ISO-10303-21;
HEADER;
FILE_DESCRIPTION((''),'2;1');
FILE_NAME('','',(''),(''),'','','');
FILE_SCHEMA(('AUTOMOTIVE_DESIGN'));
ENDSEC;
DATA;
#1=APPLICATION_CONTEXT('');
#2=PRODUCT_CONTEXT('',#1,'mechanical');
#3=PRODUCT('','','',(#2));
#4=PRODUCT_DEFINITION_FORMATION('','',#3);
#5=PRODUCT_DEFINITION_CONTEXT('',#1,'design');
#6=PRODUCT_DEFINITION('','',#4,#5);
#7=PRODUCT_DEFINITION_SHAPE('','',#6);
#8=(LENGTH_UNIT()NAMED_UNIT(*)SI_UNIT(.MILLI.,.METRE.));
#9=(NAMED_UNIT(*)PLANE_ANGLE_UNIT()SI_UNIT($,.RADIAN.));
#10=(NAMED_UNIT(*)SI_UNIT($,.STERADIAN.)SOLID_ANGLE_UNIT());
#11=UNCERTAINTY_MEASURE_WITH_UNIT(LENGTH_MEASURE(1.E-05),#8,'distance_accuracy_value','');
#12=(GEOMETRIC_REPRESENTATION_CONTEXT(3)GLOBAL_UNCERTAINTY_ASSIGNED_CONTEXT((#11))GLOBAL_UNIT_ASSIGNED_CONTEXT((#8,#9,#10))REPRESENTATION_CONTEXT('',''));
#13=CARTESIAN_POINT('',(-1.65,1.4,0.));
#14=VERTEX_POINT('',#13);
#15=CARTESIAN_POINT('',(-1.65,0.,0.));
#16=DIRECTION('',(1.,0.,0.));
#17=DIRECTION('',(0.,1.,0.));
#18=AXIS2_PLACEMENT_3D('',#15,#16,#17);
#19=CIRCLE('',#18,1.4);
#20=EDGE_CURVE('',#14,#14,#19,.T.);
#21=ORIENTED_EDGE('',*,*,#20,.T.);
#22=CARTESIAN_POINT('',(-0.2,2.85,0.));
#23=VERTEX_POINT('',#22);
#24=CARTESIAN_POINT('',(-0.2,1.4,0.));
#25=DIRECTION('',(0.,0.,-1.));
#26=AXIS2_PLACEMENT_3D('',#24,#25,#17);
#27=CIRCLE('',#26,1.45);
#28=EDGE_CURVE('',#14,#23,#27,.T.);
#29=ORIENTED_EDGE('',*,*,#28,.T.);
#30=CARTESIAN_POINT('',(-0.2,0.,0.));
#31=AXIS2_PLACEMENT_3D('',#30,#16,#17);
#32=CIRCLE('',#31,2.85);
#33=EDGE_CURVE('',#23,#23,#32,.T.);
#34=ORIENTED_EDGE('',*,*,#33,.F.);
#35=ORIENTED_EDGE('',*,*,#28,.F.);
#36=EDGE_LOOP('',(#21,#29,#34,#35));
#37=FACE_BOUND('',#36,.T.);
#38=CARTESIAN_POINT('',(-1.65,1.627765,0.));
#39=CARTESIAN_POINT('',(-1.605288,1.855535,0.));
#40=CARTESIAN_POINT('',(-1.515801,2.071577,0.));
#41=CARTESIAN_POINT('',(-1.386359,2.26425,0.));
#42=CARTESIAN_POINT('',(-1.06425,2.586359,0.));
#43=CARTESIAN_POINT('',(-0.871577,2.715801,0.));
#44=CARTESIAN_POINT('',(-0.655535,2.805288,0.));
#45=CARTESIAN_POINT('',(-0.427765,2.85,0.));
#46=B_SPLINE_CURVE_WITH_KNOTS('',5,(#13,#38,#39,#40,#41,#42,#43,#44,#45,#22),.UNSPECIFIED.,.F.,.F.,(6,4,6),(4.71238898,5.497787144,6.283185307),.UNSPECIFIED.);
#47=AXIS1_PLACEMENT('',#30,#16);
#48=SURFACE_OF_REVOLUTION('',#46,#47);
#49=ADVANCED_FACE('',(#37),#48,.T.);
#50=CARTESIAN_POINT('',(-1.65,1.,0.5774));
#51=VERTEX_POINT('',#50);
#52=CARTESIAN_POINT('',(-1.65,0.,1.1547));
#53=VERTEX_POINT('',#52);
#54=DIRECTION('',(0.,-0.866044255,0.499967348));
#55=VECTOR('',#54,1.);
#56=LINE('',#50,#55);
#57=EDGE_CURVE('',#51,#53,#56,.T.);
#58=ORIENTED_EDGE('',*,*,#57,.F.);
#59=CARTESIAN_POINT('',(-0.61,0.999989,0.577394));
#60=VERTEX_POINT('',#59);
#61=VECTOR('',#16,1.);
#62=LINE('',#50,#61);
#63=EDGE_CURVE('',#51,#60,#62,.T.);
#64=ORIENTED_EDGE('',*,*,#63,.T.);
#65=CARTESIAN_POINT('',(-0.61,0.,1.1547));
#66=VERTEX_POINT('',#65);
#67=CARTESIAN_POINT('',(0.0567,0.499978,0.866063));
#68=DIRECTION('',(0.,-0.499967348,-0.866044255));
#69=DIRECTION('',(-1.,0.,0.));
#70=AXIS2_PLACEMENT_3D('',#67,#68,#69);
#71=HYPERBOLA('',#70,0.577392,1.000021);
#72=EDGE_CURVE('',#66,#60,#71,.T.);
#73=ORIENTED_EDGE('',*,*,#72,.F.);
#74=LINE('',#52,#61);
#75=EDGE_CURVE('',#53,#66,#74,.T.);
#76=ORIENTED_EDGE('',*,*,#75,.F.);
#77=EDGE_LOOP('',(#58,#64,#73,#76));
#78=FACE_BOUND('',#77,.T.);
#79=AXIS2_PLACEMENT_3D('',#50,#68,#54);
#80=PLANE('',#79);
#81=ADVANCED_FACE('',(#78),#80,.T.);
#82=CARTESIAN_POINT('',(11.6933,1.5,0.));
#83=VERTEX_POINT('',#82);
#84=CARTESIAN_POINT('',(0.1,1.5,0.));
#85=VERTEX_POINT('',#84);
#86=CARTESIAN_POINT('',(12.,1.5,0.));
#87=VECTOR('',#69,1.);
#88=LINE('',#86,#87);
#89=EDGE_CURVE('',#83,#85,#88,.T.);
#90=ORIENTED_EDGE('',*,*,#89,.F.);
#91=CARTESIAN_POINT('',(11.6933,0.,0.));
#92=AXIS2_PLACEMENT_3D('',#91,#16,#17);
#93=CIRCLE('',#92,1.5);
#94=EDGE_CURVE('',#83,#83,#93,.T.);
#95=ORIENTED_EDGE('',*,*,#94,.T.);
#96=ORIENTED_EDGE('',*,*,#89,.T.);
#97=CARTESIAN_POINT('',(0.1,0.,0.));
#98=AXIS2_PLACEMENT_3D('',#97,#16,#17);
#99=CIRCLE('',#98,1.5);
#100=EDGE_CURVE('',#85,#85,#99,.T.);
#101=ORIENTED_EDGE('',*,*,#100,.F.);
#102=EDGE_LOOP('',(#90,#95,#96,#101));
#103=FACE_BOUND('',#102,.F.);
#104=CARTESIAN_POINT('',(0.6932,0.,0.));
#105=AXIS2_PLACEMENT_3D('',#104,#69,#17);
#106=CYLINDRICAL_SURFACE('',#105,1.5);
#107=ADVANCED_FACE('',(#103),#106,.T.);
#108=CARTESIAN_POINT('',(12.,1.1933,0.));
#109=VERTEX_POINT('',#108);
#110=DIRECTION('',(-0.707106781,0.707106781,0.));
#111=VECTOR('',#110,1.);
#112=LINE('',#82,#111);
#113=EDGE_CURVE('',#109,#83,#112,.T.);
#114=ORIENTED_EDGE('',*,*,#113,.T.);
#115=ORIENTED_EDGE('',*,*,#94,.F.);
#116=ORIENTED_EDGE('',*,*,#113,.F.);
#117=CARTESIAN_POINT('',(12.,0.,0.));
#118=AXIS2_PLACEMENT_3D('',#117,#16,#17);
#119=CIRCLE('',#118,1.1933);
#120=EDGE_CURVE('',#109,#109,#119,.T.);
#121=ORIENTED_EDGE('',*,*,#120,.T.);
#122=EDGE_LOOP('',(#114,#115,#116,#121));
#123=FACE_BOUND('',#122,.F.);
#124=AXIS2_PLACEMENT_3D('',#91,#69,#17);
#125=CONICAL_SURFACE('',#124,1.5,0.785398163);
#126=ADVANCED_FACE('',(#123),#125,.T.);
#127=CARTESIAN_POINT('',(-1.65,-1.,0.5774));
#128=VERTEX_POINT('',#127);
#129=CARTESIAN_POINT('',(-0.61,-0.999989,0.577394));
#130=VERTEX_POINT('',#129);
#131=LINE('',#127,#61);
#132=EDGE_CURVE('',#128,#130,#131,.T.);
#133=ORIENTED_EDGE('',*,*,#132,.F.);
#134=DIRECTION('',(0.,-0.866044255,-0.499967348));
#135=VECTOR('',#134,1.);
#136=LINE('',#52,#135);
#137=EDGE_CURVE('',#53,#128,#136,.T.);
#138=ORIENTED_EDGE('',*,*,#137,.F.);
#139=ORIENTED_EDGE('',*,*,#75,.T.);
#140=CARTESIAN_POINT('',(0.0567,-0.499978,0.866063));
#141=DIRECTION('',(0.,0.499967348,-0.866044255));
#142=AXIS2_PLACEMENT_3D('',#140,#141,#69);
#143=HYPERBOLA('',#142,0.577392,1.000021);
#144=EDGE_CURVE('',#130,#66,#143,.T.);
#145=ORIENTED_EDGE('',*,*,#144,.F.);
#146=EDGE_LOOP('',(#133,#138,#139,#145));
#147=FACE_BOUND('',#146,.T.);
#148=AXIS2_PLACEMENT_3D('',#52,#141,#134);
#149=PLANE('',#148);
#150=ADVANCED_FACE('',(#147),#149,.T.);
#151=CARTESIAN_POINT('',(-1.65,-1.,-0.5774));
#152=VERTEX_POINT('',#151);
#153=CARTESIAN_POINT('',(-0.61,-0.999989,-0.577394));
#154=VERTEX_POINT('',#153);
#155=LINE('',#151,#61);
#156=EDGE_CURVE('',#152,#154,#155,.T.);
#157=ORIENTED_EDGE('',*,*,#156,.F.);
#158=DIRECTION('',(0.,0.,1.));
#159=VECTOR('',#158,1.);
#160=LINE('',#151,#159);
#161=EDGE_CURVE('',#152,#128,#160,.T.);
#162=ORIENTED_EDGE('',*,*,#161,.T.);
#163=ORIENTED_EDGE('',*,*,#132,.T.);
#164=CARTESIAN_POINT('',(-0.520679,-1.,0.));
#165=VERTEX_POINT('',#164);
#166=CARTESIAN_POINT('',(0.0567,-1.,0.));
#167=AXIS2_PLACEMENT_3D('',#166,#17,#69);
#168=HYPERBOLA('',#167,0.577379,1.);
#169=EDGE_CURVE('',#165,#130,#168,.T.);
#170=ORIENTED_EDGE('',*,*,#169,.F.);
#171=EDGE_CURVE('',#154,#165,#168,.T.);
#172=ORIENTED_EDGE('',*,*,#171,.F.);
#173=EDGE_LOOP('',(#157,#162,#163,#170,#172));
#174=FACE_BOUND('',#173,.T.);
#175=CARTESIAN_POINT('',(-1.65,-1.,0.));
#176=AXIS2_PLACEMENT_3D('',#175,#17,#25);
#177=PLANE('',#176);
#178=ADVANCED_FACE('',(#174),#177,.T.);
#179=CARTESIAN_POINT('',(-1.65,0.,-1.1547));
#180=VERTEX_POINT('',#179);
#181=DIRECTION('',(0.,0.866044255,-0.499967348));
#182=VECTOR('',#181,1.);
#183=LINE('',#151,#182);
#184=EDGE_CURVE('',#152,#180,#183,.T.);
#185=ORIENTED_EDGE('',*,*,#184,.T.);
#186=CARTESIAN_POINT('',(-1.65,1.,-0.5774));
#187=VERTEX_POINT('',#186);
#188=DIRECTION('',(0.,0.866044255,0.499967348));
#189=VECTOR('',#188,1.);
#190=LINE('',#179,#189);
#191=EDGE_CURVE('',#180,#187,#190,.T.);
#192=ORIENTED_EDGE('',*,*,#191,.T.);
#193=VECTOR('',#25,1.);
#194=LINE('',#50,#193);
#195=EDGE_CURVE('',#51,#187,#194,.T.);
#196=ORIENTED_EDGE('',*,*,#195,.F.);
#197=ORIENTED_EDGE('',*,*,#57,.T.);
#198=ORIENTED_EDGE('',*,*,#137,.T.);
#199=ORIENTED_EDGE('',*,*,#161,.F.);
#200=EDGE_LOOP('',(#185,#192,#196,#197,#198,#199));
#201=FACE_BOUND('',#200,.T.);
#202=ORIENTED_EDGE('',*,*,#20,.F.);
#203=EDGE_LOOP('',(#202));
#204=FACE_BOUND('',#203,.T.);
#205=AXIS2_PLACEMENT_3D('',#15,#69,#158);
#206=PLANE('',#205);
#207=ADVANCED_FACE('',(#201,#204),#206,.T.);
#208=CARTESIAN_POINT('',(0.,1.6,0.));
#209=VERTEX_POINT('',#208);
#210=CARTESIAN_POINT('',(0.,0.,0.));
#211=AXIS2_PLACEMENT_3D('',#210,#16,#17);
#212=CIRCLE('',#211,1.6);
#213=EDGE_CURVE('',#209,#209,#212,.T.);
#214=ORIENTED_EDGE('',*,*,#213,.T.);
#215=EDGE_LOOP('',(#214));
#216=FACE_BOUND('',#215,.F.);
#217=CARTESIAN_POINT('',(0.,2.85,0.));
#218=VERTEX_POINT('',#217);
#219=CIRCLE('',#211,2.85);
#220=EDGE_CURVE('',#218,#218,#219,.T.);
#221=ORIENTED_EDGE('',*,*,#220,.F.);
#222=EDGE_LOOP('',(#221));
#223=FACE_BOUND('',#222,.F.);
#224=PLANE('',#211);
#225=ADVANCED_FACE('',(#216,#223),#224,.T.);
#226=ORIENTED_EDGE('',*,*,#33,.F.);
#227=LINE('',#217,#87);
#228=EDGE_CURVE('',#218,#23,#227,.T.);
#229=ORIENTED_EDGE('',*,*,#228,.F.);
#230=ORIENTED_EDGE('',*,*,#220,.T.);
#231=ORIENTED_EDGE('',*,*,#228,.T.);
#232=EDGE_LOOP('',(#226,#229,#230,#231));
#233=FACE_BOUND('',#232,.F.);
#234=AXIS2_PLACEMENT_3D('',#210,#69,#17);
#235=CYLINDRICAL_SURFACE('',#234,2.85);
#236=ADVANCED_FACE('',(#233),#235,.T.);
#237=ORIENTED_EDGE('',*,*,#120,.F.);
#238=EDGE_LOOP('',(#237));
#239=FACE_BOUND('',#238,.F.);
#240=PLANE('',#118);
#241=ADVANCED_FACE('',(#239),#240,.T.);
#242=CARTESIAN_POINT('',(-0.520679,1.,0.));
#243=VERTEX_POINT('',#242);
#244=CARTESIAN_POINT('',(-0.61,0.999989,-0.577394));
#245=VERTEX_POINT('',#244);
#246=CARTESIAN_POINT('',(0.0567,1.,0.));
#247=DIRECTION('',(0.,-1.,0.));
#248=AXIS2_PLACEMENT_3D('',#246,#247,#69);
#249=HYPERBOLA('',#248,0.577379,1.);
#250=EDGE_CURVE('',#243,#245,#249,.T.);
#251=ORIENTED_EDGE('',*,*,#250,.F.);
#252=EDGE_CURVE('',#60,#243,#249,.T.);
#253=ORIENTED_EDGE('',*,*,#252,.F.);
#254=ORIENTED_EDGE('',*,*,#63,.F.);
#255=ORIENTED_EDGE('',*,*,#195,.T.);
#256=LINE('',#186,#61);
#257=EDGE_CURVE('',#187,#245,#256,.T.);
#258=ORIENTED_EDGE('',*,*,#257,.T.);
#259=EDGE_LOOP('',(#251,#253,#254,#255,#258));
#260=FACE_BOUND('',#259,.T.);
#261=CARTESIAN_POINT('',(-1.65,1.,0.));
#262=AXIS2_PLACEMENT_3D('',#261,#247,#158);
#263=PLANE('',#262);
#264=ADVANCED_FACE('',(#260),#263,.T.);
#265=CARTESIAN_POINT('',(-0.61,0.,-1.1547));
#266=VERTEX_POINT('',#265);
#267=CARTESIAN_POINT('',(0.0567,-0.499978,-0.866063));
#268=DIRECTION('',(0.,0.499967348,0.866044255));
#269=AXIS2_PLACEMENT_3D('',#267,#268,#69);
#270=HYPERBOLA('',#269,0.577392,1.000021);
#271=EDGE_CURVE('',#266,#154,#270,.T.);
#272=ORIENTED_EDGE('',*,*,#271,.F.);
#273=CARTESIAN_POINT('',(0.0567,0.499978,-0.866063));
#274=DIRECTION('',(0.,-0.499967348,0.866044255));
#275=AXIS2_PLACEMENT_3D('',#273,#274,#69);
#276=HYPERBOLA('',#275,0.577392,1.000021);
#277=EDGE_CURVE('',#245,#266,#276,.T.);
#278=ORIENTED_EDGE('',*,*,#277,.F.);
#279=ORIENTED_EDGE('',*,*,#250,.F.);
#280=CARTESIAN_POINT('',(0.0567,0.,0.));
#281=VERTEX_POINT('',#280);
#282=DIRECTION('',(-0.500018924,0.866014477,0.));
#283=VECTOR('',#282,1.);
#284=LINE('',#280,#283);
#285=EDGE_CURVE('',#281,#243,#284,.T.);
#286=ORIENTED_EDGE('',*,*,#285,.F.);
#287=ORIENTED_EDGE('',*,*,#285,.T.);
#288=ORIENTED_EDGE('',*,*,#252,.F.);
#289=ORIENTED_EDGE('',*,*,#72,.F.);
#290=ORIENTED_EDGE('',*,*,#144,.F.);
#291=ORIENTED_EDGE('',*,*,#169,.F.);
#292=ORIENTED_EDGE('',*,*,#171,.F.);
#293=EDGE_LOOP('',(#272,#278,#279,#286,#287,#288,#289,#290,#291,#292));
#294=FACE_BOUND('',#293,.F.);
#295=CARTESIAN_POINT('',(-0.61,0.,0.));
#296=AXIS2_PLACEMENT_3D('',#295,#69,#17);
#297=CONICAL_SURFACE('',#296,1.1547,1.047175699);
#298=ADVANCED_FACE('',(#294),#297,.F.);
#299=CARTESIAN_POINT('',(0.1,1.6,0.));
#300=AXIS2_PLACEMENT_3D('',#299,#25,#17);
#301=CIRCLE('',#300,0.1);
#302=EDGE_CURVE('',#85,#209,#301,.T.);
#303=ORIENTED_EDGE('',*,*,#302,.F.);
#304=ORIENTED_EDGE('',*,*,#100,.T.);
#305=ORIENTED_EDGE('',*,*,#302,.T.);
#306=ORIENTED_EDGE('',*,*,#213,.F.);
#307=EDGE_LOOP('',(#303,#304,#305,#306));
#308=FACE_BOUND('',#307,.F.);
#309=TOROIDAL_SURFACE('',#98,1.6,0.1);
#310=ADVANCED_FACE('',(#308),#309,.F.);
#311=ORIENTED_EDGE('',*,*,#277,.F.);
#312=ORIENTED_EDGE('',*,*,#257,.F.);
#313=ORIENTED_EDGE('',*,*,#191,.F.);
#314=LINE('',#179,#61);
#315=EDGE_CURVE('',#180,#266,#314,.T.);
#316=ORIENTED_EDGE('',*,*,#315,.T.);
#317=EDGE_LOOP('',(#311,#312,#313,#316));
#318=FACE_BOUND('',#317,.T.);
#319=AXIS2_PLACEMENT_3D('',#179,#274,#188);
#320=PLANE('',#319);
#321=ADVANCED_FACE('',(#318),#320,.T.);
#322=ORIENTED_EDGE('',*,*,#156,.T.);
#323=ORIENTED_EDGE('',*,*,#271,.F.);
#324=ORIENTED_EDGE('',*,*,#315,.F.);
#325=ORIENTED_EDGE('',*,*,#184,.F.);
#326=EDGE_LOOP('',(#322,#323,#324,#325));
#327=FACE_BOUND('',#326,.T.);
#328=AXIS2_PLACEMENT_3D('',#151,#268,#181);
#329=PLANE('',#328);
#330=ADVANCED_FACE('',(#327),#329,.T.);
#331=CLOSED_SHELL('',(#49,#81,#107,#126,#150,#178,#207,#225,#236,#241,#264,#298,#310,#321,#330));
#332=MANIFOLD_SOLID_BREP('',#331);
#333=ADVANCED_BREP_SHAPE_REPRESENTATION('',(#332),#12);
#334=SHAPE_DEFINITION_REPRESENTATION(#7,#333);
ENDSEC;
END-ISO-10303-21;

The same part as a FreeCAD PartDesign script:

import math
import FreeCAD as App
import Part
import Sketcher

V = App.Vector
Q = App.Units.Quantity


def edges_at(feature, points):
    """Names of the edges that pass closest to the given points."""
    edges = feature.Shape.Edges
    near = lambda p: min(range(len(edges)), key=lambda i: edges[i].distToShape(Part.Vertex(*p))[0])
    return sorted({f"Edge{near(p) + 1}" for p in points})


def add_polygon(sketch, points):
    """Adds a closed chain of lines whose ends are joined by coincident constraints."""
    first, n = sketch.GeometryCount, len(points)
    for a, b in zip(points, points[1:] + points[:1]):
        sketch.addGeometry(Part.LineSegment(App.Vector(*a, 0), App.Vector(*b, 0)), False)
    for i in range(n):
        sketch.addConstraint(Sketcher.Constraint("Coincident", first + i, 2, first + (i + 1) % n, 1))

doc = App.newDocument("Part")
body = doc.addObject("PartDesign::Body", "Body")

# Sketch on XY plane
sketch1 = doc.addObject("Sketcher::SketchObject", "Sketch")
body.addObject(sketch1)
sketch1.AttachmentSupport = (doc.XY_Plane, [""])
sketch1.MapMode = "FlatFace"
add_polygon(sketch1, [(0.1, 0), (12, 0), (12, 1.5), (0, 1.5), (0, 2.9), (-1.6, 2.9), (-1.6, 1.2), (-0.6, 1.2)])  # lines 0-7
sketch1.addConstraint(Sketcher.Constraint("Horizontal", 0))
sketch1.addConstraint(Sketcher.Constraint("Vertical", 1))
sketch1.addConstraint(Sketcher.Constraint("Horizontal", 2))
sketch1.addConstraint(Sketcher.Constraint("Vertical", 3))
sketch1.addConstraint(Sketcher.Constraint("Horizontal", 4))
sketch1.addConstraint(Sketcher.Constraint("Vertical", 5))
sketch1.addConstraint(Sketcher.Constraint("Horizontal", 6))
sketch1.addConstraint(Sketcher.Constraint("PointOnObject", 0, 2, -1))
sketch1.addConstraint(Sketcher.Constraint("PointOnObject", 2, 2, -2))
sketch1.addConstraint(Sketcher.Constraint("DistanceX", 2, 2, 2, 1, Q("12 mm")))
sketch1.addConstraint(Sketcher.Constraint("DistanceX", 4, 2, 4, 1, Q("1.65 mm")))
sketch1.addConstraint(Sketcher.Constraint("DistanceX", 6, 1, 6, 2, Q("1.04 mm")))
sketch1.addConstraint(Sketcher.Constraint("DistanceY", 1, 1, 1, 2, Q("1.5 mm")))
sketch1.addConstraint(Sketcher.Constraint("DistanceY", 3, 1, 3, 2, Q("1.35 mm")))
sketch1.addConstraint(Sketcher.Constraint("DistanceX", 0, 1, 0, 2, Q("11.9433 mm")))
sketch1.addConstraint(Sketcher.Constraint("DistanceY", 5, 2, 5, 1, Q("1.6953 mm")))
revolution = doc.addObject("PartDesign::Revolution", "Revolution")
body.addObject(revolution)
revolution.Profile = sketch1
revolution.ReferenceAxis = (sketch1, ["H_Axis"])
revolution.Angle = 360

# Sketch on YZ plane
sketch2 = doc.addObject("Sketcher::SketchObject", "Sketch001")
body.addObject(sketch2)
sketch2.AttachmentSupport = (doc.YZ_Plane, [""])
sketch2.MapMode = "FlatFace"
sketch2.AttachmentOffset = App.Placement(V(0, 0, -1.65), App.Rotation())
sketch2.addGeometry(Part.LineSegment(V(1, 0.6, 0), V(0, 1.2, 0)), False)
sketch2.addGeometry(Part.ArcOfCircle(Part.Circle(V(0, 0, 0), V(0, 0, 1), 1.2), math.radians(30), math.radians(90)), False)
sketch2.addGeometry(Part.ArcOfCircle(Part.Circle(V(0, 0, 0), V(0, 0, 1), 1.2), math.radians(90), math.radians(150)), False)
sketch2.addGeometry(Part.LineSegment(V(0, 1.2, 0), V(-1, 0.6, 0)), False)
sketch2.addGeometry(Part.ArcOfCircle(Part.Circle(V(0, 0, 0), V(0, 0, 1), 1.2), math.radians(-30), math.radians(30)), False)
sketch2.addGeometry(Part.LineSegment(V(1, 0.6, 0), V(1, -0.6, 0)), False)
sketch2.addGeometry(Part.LineSegment(V(-1, 0.6, 0), V(-1, -0.6, 0)), False)
sketch2.addGeometry(Part.ArcOfCircle(Part.Circle(V(0, 0, 0), V(0, 0, 1), 1.2), math.radians(150), math.radians(210)), False)
sketch2.addGeometry(Part.LineSegment(V(-1, -0.6, 0), V(0, -1.2, 0)), False)
sketch2.addGeometry(Part.ArcOfCircle(Part.Circle(V(0, 0, 0), V(0, 0, 1), 1.2), math.radians(-150), math.radians(-90)), False)
sketch2.addGeometry(Part.ArcOfCircle(Part.Circle(V(0, 0, 0), V(0, 0, 1), 1.2), math.radians(-90), math.radians(-30)), False)
sketch2.addGeometry(Part.LineSegment(V(0, -1.2, 0), V(1, -0.6, 0)), False)
sketch2.addConstraint(Sketcher.Constraint("Coincident", 0, 1, 1, 1))
sketch2.addConstraint(Sketcher.Constraint("Coincident", 1, 2, 0, 2))
sketch2.addConstraint(Sketcher.Constraint("Coincident", 2, 1, 3, 1))
sketch2.addConstraint(Sketcher.Constraint("Coincident", 3, 2, 2, 2))
sketch2.addConstraint(Sketcher.Constraint("Coincident", 4, 1, 5, 2))
sketch2.addConstraint(Sketcher.Constraint("Coincident", 5, 1, 4, 2))
sketch2.addConstraint(Sketcher.Constraint("Coincident", 6, 1, 7, 1))
sketch2.addConstraint(Sketcher.Constraint("Coincident", 7, 2, 6, 2))
sketch2.addConstraint(Sketcher.Constraint("Coincident", 8, 1, 9, 1))
sketch2.addConstraint(Sketcher.Constraint("Coincident", 9, 2, 8, 2))
sketch2.addConstraint(Sketcher.Constraint("Coincident", 10, 1, 11, 1))
sketch2.addConstraint(Sketcher.Constraint("Coincident", 11, 2, 10, 2))
sketch2.addConstraint(Sketcher.Constraint("Vertical", 5))
sketch2.addConstraint(Sketcher.Constraint("Vertical", 6))
sketch2.addConstraint(Sketcher.Constraint("Coincident", 1, 3, -1, 1))
sketch2.addConstraint(Sketcher.Constraint("Coincident", 2, 3, -1, 1))
sketch2.addConstraint(Sketcher.Constraint("Coincident", 4, 3, -1, 1))
sketch2.addConstraint(Sketcher.Constraint("Coincident", 7, 3, -1, 1))
sketch2.addConstraint(Sketcher.Constraint("Coincident", 9, 3, -1, 1))
sketch2.addConstraint(Sketcher.Constraint("Coincident", 10, 3, -1, 1))
sketch2.addConstraint(Sketcher.Constraint("Coincident", 2, 1, 1, 2))
sketch2.addConstraint(Sketcher.Constraint("Coincident", 5, 1, 0, 1))
sketch2.addConstraint(Sketcher.Constraint("Coincident", 6, 1, 3, 2))
sketch2.addConstraint(Sketcher.Constraint("Coincident", 8, 1, 7, 2))
sketch2.addConstraint(Sketcher.Constraint("Coincident", 10, 1, 9, 2))
sketch2.addConstraint(Sketcher.Constraint("PointOnObject", 1, 2, -2))
sketch2.addConstraint(Sketcher.Constraint("PointOnObject", 9, 2, -2))
sketch2.addConstraint(Sketcher.Constraint("Parallel", 0, 8))
sketch2.addConstraint(Sketcher.Constraint("Parallel", 3, 11))
sketch2.addConstraint(Sketcher.Constraint("DistanceX", -1, 1, 0, 1, Q("1 mm")))
sketch2.addConstraint(Sketcher.Constraint("Radius", 1, Q("1.1547 mm")))
pad1 = doc.addObject("PartDesign::Pad", "Pad")
body.addObject(pad1)
pad1.Profile = sketch2
pad1.Type = "UpToFirst"
doc.recompute()

fillet = doc.addObject("PartDesign::Fillet", "Fillet")
body.addObject(fillet)
fillet.Base = (pad1, edges_at(pad1, [(-1.65, -2.85, 0)]))
fillet.Radius = 1.45
doc.recompute()

chamfer = doc.addObject("PartDesign::Chamfer", "Chamfer")
body.addObject(chamfer)
chamfer.Base = (fillet, edges_at(fillet, [(12, -1.5, 0)]))
chamfer.ChamferType = "Two distances"
chamfer.Size = 0.3067
chamfer.Size2 = 0.3067
doc.recompute()

fillet2 = doc.addObject("PartDesign::Fillet", "Fillet001")
body.addObject(fillet2)
fillet2.Base = (chamfer, edges_at(chamfer, [(0, -1.5, 0)]))
fillet2.Radius = 0.1

doc.recompute()
